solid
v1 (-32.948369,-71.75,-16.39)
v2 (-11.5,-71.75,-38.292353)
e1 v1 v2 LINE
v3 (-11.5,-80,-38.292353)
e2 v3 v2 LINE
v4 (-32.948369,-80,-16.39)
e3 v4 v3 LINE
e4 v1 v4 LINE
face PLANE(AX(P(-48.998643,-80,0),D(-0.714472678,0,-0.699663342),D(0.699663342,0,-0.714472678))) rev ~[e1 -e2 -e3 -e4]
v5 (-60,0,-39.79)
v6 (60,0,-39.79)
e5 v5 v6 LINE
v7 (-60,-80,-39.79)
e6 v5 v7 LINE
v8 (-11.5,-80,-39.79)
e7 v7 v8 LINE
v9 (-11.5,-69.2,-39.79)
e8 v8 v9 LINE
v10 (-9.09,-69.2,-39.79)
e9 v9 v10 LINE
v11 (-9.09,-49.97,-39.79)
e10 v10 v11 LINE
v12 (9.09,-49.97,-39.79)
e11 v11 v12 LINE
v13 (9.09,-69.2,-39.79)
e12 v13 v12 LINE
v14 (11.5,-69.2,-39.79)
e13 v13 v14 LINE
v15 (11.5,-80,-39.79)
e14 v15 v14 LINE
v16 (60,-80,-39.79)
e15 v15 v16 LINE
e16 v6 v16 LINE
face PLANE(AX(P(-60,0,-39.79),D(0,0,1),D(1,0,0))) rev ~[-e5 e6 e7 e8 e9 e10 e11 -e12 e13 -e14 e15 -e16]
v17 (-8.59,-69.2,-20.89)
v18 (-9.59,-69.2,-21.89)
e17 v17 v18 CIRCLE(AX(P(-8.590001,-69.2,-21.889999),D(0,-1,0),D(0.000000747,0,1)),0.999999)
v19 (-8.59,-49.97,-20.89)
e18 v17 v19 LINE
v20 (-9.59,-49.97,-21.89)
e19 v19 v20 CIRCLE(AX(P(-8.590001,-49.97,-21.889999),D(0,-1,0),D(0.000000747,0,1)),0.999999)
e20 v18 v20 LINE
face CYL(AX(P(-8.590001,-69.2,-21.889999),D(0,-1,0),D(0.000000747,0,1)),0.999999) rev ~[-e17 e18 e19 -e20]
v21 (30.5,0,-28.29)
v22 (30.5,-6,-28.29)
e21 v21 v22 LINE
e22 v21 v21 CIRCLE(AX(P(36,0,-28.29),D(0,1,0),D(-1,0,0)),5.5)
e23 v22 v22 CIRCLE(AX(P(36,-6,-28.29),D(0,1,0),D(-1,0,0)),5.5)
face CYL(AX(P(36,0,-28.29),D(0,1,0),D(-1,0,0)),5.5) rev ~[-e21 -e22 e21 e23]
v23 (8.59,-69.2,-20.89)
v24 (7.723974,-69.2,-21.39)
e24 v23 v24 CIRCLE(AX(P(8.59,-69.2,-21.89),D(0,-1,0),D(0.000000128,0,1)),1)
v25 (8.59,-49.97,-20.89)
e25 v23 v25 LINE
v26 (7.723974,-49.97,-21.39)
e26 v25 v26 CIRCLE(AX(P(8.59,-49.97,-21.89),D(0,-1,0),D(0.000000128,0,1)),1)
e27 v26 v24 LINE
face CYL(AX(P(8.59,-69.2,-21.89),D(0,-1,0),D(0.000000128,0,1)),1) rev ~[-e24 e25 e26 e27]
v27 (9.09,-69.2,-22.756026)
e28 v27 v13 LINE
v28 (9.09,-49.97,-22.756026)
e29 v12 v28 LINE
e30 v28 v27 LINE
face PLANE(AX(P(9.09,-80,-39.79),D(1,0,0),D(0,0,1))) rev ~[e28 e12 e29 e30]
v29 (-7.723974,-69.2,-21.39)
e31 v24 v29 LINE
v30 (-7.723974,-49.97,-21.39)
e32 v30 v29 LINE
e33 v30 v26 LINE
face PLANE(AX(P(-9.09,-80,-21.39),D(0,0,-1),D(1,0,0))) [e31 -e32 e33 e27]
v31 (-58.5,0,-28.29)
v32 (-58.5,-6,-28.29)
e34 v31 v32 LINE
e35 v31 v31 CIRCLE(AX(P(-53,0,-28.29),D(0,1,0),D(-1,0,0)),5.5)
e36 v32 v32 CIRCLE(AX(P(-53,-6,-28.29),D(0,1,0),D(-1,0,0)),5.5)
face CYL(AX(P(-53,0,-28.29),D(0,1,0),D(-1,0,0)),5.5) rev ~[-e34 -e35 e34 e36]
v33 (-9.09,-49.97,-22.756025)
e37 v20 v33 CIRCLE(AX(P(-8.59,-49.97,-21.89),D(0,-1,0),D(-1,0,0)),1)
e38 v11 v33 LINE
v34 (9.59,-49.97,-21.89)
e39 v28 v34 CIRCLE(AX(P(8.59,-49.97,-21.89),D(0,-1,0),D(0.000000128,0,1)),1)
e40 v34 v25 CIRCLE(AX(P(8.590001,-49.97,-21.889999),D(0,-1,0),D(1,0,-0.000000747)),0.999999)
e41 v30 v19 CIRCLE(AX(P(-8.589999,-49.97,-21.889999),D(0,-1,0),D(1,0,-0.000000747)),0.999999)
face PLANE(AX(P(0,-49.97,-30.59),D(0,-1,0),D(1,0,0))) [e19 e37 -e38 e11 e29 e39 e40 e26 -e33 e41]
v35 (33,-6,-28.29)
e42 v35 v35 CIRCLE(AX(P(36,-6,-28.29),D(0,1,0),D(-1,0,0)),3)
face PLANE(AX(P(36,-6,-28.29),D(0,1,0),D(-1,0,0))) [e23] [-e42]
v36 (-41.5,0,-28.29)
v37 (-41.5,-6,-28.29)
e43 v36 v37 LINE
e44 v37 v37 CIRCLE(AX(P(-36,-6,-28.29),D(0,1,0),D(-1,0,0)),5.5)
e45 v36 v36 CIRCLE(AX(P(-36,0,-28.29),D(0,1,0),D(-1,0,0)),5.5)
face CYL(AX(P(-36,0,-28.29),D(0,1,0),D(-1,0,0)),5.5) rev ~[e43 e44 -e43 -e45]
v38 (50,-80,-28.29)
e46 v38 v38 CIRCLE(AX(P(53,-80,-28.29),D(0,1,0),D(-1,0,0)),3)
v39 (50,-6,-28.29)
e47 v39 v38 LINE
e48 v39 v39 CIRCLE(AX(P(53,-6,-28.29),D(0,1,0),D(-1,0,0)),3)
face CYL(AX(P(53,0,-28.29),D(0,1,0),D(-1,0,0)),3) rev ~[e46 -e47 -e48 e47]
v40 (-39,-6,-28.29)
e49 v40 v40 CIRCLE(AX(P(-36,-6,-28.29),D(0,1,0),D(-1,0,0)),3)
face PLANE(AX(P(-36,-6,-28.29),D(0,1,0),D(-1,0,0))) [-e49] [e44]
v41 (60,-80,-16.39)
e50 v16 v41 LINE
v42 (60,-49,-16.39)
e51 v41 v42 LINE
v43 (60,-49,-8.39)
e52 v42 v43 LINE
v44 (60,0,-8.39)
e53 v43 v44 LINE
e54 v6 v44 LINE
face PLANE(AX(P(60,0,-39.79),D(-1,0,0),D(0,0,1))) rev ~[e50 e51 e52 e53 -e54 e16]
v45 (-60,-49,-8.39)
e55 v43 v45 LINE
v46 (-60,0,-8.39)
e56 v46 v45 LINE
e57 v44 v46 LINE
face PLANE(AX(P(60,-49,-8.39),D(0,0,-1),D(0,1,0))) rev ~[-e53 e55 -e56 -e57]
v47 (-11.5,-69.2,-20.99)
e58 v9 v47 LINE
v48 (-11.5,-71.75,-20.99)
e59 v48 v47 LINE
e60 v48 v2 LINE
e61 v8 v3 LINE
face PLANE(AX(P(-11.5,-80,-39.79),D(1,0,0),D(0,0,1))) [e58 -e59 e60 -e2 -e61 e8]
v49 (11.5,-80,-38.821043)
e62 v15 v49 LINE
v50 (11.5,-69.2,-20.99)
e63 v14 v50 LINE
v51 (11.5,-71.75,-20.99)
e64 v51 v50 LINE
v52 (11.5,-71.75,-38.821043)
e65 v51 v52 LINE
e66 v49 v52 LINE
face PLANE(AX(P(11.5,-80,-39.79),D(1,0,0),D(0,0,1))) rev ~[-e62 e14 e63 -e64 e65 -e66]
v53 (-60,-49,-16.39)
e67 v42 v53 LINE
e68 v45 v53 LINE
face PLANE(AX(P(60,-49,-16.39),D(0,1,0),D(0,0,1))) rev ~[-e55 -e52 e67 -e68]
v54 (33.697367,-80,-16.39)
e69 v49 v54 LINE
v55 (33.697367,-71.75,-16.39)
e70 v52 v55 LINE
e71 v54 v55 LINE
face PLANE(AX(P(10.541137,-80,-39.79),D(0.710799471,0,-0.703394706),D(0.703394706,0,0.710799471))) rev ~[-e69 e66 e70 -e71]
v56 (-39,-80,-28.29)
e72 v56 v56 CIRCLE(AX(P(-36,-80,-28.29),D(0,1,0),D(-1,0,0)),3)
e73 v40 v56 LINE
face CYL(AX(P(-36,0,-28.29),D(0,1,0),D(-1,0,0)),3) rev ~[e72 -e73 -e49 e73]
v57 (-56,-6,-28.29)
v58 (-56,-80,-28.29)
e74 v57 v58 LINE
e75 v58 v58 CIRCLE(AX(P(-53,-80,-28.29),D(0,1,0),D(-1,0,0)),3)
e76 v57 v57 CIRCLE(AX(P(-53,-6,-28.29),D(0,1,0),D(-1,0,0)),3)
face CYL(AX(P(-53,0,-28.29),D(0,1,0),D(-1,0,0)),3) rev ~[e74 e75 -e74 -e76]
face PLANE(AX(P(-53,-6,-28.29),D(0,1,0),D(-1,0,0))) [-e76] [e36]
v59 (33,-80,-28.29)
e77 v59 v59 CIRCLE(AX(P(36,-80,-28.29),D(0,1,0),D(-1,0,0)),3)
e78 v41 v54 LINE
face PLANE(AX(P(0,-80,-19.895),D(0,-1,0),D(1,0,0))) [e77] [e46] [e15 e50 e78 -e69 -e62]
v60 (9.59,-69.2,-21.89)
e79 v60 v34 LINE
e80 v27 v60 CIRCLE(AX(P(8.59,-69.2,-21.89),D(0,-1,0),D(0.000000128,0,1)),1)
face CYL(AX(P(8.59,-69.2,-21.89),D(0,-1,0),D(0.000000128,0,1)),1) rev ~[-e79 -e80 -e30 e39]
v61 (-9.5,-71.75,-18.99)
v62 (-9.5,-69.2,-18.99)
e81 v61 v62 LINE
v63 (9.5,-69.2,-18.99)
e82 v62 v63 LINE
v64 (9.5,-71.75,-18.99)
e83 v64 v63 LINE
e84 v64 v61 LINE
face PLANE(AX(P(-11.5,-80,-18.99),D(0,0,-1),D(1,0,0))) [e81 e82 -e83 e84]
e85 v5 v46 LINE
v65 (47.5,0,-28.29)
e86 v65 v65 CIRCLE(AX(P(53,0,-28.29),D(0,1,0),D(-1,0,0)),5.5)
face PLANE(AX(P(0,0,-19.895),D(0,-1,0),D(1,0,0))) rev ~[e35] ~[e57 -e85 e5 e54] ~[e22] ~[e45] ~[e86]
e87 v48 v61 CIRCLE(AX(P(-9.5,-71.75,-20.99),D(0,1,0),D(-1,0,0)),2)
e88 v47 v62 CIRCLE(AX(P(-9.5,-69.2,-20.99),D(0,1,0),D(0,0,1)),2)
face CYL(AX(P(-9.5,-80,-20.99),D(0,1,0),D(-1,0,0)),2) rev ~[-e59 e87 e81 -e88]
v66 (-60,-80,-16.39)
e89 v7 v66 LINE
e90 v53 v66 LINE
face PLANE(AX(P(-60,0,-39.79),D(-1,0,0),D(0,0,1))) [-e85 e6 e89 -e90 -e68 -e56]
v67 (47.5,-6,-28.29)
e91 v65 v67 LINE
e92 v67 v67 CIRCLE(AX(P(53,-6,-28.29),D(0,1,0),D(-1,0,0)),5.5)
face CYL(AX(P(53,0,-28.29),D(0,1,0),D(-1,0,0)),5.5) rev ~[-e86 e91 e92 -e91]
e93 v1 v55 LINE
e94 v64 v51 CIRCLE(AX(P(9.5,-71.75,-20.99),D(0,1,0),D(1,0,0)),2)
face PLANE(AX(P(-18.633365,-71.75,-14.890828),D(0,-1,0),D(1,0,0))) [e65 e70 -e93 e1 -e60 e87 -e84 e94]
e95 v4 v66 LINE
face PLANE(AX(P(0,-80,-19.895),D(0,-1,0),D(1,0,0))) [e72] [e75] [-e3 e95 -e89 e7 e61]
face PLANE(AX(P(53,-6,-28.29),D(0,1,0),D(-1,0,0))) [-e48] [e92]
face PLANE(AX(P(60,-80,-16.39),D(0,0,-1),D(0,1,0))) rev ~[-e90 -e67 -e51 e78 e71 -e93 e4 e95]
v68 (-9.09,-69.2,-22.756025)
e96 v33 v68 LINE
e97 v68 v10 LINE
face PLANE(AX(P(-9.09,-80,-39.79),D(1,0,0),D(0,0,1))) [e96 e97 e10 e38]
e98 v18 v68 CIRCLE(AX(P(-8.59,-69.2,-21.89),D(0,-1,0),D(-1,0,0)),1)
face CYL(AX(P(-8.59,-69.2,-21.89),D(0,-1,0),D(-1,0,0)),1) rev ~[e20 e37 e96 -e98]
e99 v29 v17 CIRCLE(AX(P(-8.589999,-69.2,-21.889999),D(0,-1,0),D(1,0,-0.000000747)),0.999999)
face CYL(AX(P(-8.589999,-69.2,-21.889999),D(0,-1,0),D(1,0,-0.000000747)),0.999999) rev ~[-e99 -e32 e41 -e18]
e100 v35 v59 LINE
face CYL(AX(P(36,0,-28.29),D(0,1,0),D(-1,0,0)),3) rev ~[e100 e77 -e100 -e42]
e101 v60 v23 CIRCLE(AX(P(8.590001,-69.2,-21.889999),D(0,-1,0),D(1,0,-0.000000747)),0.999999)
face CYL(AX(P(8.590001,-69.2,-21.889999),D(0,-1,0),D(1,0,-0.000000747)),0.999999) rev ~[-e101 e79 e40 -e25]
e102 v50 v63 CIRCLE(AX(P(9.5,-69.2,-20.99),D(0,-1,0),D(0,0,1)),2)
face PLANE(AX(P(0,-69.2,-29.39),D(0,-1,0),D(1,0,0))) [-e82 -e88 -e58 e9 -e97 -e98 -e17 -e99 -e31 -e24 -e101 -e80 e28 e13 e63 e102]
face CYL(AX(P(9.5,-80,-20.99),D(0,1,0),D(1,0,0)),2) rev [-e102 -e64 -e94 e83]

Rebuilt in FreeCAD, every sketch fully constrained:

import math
import FreeCAD as App
import Part
import Sketcher
Q = App.Units.Quantity


def edges_at(feature, points):
    """Names of the edges that pass closest to the given points."""
    edges = feature.Shape.Edges
    near = lambda p: min(range(len(edges)), key=lambda i: edges[i].distToShape(Part.Vertex(*p))[0])
    return sorted({f"Edge{near(p) + 1}" for p in points})


def add_polygon(sketch, points):
    """Adds a closed chain of lines whose ends are joined by coincident constraints."""
    first, n = sketch.GeometryCount, len(points)
    for a, b in zip(points, points[1:] + points[:1]):
        sketch.addGeometry(Part.LineSegment(App.Vector(*a, 0), App.Vector(*b, 0)), False)
    for i in range(n):
        sketch.addConstraint(Sketcher.Constraint("Coincident", first + i, 2, first + (i + 1) % n, 1))

doc = App.newDocument("Part")
body = doc.addObject("PartDesign::Body", "Body")

# Sketch on XZ plane
sketch1 = body.newObject("Sketcher::SketchObject", "Sketch")
sketch1.AttachmentSupport = (doc.getObject("XZ_Plane"), [""])
sketch1.MapMode = "FlatFace"
add_polygon(sketch1, [(-60, 0), (-60, -40), (60, -40), (60, 0)])  # lines 0-3
sketch1.addConstraint(Sketcher.Constraint("Vertical", 0))
sketch1.addConstraint(Sketcher.Constraint("Horizontal", 1))
sketch1.addConstraint(Sketcher.Constraint("Vertical", 2))
sketch1.addConstraint(Sketcher.Constraint("Horizontal", 3))
sketch1.addConstraint(Sketcher.Constraint("Symmetric", 2, 2, 3, 2, -1, 1))
sketch1.addConstraint(Sketcher.Constraint("DistanceX", 1, 1, 1, 2, Q("120 mm")))
sketch1.addConstraint(Sketcher.Constraint("DistanceY", 0, 2, 0, 1, Q("39.79 mm")))
pad1 = body.newObject("PartDesign::Pad", "Pad")
pad1.Profile = sketch1
pad1.Length = 80

# Sketch on XZ plane
sketch2 = body.newObject("Sketcher::SketchObject", "Sketch001")
sketch2.AttachmentSupport = (doc.getObject("XZ_Plane"), [""])
sketch2.MapMode = "FlatFace"
sketch2.AttachmentOffset = App.Placement(App.Vector(0, 0, 80), App.Rotation())
add_polygon(sketch2, [(-9, -21), (-9, -40), (9, -40), (9, -21)])  # lines 0-3
sketch2.addConstraint(Sketcher.Constraint("Vertical", 0))
sketch2.addConstraint(Sketcher.Constraint("Horizontal", 1))
sketch2.addConstraint(Sketcher.Constraint("Vertical", 2))
sketch2.addConstraint(Sketcher.Constraint("Horizontal", 3))
sketch2.addConstraint(Sketcher.Constraint("DistanceY", 0, 2, 0, 1, Q("18.4 mm")))
sketch2.addConstraint(Sketcher.Constraint("DistanceX", 1, 1, 1, 2, Q("18.18 mm")))
sketch2.addConstraint(Sketcher.Constraint("DistanceX", 0, 2, -1, 1, Q("9.09 mm")))
sketch2.addConstraint(Sketcher.Constraint("DistanceY", 0, 2, -1, 1, Q("39.79 mm")))
pocket1 = body.newObject("PartDesign::Pocket", "Pocket")
pocket1.Profile = sketch2
pocket1.Length = 30.03

# Sketch on XZ plane
sketch3 = body.newObject("Sketcher::SketchObject", "Sketch002")
sketch3.AttachmentSupport = (doc.getObject("XZ_Plane"), [""])
sketch3.MapMode = "FlatFace"
sketch3.AttachmentOffset = App.Placement(App.Vector(0, 0, 80), App.Rotation())
add_polygon(sketch3, [(-12, -19), (-12, -40), (12, -40), (12, -19)])  # lines 0-3
sketch3.addConstraint(Sketcher.Constraint("Vertical", 0))
sketch3.addConstraint(Sketcher.Constraint("Horizontal", 1))
sketch3.addConstraint(Sketcher.Constraint("Vertical", 2))
sketch3.addConstraint(Sketcher.Constraint("Horizontal", 3))
sketch3.addConstraint(Sketcher.Constraint("DistanceX", 1, 1, 1, 2, Q("23 mm")))
sketch3.addConstraint(Sketcher.Constraint("DistanceY", 0, 2, 0, 1, Q("20.8 mm")))
sketch3.addConstraint(Sketcher.Constraint("DistanceX", 0, 2, -1, 1, Q("11.5 mm")))
sketch3.addConstraint(Sketcher.Constraint("DistanceY", 0, 2, -1, 1, Q("39.79 mm")))
pocket2 = body.newObject("PartDesign::Pocket", "Pocket001")
pocket2.Profile = sketch3
pocket2.Length = 10.8

# Sketch on XZ plane
sketch4 = body.newObject("Sketcher::SketchObject", "Sketch003")
sketch4.AttachmentSupport = (doc.getObject("XZ_Plane"), [""])
sketch4.MapMode = "FlatFace"
sketch4.AttachmentOffset = App.Placement(App.Vector(0, 0, 69.2), App.Rotation())
sketch4.addGeometry(Part.ArcOfCircle(Part.Circle(App.Vector(-8.6, -21.9, 0), App.Vector(0, 0, 1), 1), math.radians(90), math.radians(180)), False)
sketch4.addGeometry(Part.ArcOfCircle(Part.Circle(App.Vector(-8.6, -21.9, 0), App.Vector(0, 0, 1), 1), math.radians(180), math.radians(360)), False)
sketch4.addGeometry(Part.ArcOfCircle(Part.Circle(App.Vector(-8.6, -21.9, 0), App.Vector(0, 0, 1), 1), math.radians(0), math.radians(90)), False)
sketch4.addGeometry(Part.ArcOfCircle(Part.Circle(App.Vector(8.6, -21.9, 0), App.Vector(0, 0, 1), 1), math.radians(0), math.radians(90)), False)
sketch4.addGeometry(Part.ArcOfCircle(Part.Circle(App.Vector(8.6, -21.9, 0), App.Vector(0, 0, 1), 1), math.radians(90), math.radians(360)), False)
sketch4.addConstraint(Sketcher.Constraint("Tangent", 0, 2, 1, 1))
sketch4.addConstraint(Sketcher.Constraint("Tangent", 1, 2, 2, 1))
sketch4.addConstraint(Sketcher.Constraint("Tangent", 2, 2, 0, 1))
sketch4.addConstraint(Sketcher.Constraint("Tangent", 3, 1, 4, 2))
sketch4.addConstraint(Sketcher.Constraint("Coincident", 4, 1, 3, 2))
sketch4.addConstraint(Sketcher.Constraint("Equal", 2, 3))
sketch4.addConstraint(Sketcher.Constraint("Symmetric", 0, 3, 3, 3, -2))
sketch4.addConstraint(Sketcher.Constraint("Horizontal", 4, 3, 0, 2))
sketch4.addConstraint(Sketcher.Constraint("Horizontal", 0, 2, 1, 2))
sketch4.addConstraint(Sketcher.Constraint("Horizontal", 1, 2, 3, 1))
sketch4.addConstraint(Sketcher.Constraint("Vertical", 1, 3, 2, 2))
sketch4.addConstraint(Sketcher.Constraint("Vertical", 3, 3, 4, 1))
sketch4.addConstraint(Sketcher.Constraint("Radius", 0, Q("0.999999 mm")))
sketch4.addConstraint(Sketcher.Constraint("DistanceX", 0, 3, -1, 1, Q("8.590001 mm")))
sketch4.addConstraint(Sketcher.Constraint("DistanceY", 0, 3, -1, 1, Q("21.889999 mm")))
pocket3 = body.newObject("PartDesign::Pocket", "Pocket002")
pocket3.Profile = sketch4
pocket3.Length = 19.23
doc.recompute()

fillet = body.newObject("PartDesign::Fillet", "Fillet")
fillet.Base = (pocket3, edges_at(pocket3, [(-11.5, -74.6, -18.99), (11.5, -74.6, -18.99)]))
fillet.Radius = 2

# Sketch on XZ plane
sketch5 = body.newObject("Sketcher::SketchObject", "Sketch004")
sketch5.AttachmentSupport = (doc.getObject("XZ_Plane"), [""])
sketch5.MapMode = "FlatFace"
sketch5.AttachmentOffset = App.Placement(App.Vector(0, 0, 80), App.Rotation())
add_polygon(sketch5, [(-49, 0), (-10, -40), (11, -40), (50, 0)])  # lines 0-3
sketch5.addConstraint(Sketcher.Constraint("Horizontal", 1))
sketch5.addConstraint(Sketcher.Constraint("Horizontal", 3))
sketch5.addConstraint(Sketcher.Constraint("PointOnObject", 2, 2, -1))
sketch5.addConstraint(Sketcher.Constraint("Angle", 0, Q("-45.6 deg")))
sketch5.addConstraint(Sketcher.Constraint("Angle", 2, Q("45.3 deg")))
sketch5.addConstraint(Sketcher.Constraint("DistanceY", 0, 2, -1, 1, Q("39.79 mm")))
sketch5.addConstraint(Sketcher.Constraint("DistanceX", 1, 1, 1, 2, Q("20.574533 mm")))
sketch5.addConstraint(Sketcher.Constraint("DistanceX", 0, 2, -1, 1, Q("10.033396 mm")))
pocket4 = body.newObject("PartDesign::Pocket", "Pocket003")
pocket4.Profile = sketch5
pocket4.Length = 8.25

# Sketch on YZ plane
sketch6 = body.newObject("Sketcher::SketchObject", "Sketch005")
sketch6.AttachmentSupport = (doc.getObject("YZ_Plane"), [""])
sketch6.MapMode = "FlatFace"
sketch6.AttachmentOffset = App.Placement(App.Vector(0, 0, 60), App.Rotation())
add_polygon(sketch6, [(-49, -8), (0, -8), (0, 0), (-80, 0), (-80, -16), (-49, -16)])  # lines 0-5
sketch6.addConstraint(Sketcher.Constraint("Horizontal", 0))
sketch6.addConstraint(Sketcher.Constraint("Vertical", 1))
sketch6.addConstraint(Sketcher.Constraint("Horizontal", 2))
sketch6.addConstraint(Sketcher.Constraint("Vertical", 3))
sketch6.addConstraint(Sketcher.Constraint("Horizontal", 4))
sketch6.addConstraint(Sketcher.Constraint("Vertical", 5))
sketch6.addConstraint(Sketcher.Constraint("Coincident", 1, 2, -1, 1))
sketch6.addConstraint(Sketcher.Constraint("DistanceX", 0, 1, 0, 2, Q("49 mm")))
sketch6.addConstraint(Sketcher.Constraint("DistanceX", 2, 2, 2, 1, Q("80 mm")))
sketch6.addConstraint(Sketcher.Constraint("DistanceY", 5, 1, 5, 2, Q("8 mm")))
sketch6.addConstraint(Sketcher.Constraint("DistanceY", 1, 1, 1, 2, Q("8.39 mm")))
pocket5 = body.newObject("PartDesign::Pocket", "Pocket004")
pocket5.Profile = sketch6
pocket5.Type = "ThroughAll"

# Sketch on XZ plane
sketch7 = body.newObject("Sketcher::SketchObject", "Sketch006")
sketch7.AttachmentSupport = (doc.getObject("XZ_Plane"), [""])
sketch7.MapMode = "FlatFace"
sketch7.addGeometry(Part.Circle(App.Vector(53, -28.3, 0), App.Vector(0, 0, 1), 3), False)
sketch7.addGeometry(Part.Circle(App.Vector(36, -28.3, 0), App.Vector(0, 0, 1), 3), False)
sketch7.addGeometry(Part.Circle(App.Vector(-36, -28.3, 0), App.Vector(0, 0, 1), 3), False)
sketch7.addGeometry(Part.Circle(App.Vector(-53, -28.3, 0), App.Vector(0, 0, 1), 3), False)
sketch7.addConstraint(Sketcher.Constraint("Equal", 0, 1))
sketch7.addConstraint(Sketcher.Constraint("Equal", 1, 2))
sketch7.addConstraint(Sketcher.Constraint("Equal", 2, 3))
sketch7.addConstraint(Sketcher.Constraint("Symmetric", 1, 3, 2, 3, -2))
sketch7.addConstraint(Sketcher.Constraint("Symmetric", 0, 3, 3, 3, -2))
sketch7.addConstraint(Sketcher.Constraint("Horizontal", 0, 3, 1, 3))
sketch7.addConstraint(Sketcher.Constraint("Diameter", 0, Q("6 mm")))
sketch7.addConstraint(Sketcher.Constraint("DistanceX", -1, 1, 0, 3, Q("53 mm")))
sketch7.addConstraint(Sketcher.Constraint("DistanceX", -1, 1, 1, 3, Q("36 mm")))
sketch7.addConstraint(Sketcher.Constraint("DistanceY", 0, 3, -1, 1, Q("28.29 mm")))
pocket6 = body.newObject("PartDesign::Pocket", "Pocket005")
pocket6.Profile = sketch7
pocket6.Type = "ThroughAll"
pocket6.Reversed = True

# Sketch on XZ plane
sketch8 = body.newObject("Sketcher::SketchObject", "Sketch007")
sketch8.AttachmentSupport = (doc.getObject("XZ_Plane"), [""])
sketch8.MapMode = "FlatFace"
sketch8.addGeometry(Part.Circle(App.Vector(53, -28.3, 0), App.Vector(0, 0, 1), 5.5), False)
sketch8.addGeometry(Part.Circle(App.Vector(53, -28.3, 0), App.Vector(0, 0, 1), 3), False)
sketch8.addGeometry(Part.Circle(App.Vector(36, -28.3, 0), App.Vector(0, 0, 1), 5.5), False)
sketch8.addGeometry(Part.Circle(App.Vector(36, -28.3, 0), App.Vector(0, 0, 1), 3), False)
sketch8.addGeometry(Part.Circle(App.Vector(-36, -28.3, 0), App.Vector(0, 0, 1), 5.5), False)
sketch8.addGeometry(Part.Circle(App.Vector(-36, -28.3, 0), App.Vector(0, 0, 1), 3), False)
sketch8.addGeometry(Part.Circle(App.Vector(-53, -28.3, 0), App.Vector(0, 0, 1), 5.5), False)
sketch8.addGeometry(Part.Circle(App.Vector(-53, -28.3, 0), App.Vector(0, 0, 1), 3), False)
sketch8.addConstraint(Sketcher.Constraint("Coincident", 1, 3, 0, 3))
sketch8.addConstraint(Sketcher.Constraint("Coincident", 3, 3, 2, 3))
sketch8.addConstraint(Sketcher.Constraint("Coincident", 5, 3, 4, 3))
sketch8.addConstraint(Sketcher.Constraint("Coincident", 7, 3, 6, 3))
sketch8.addConstraint(Sketcher.Constraint("Equal", 0, 2))
sketch8.addConstraint(Sketcher.Constraint("Equal", 1, 3))
sketch8.addConstraint(Sketcher.Constraint("Equal", 2, 4))
sketch8.addConstraint(Sketcher.Constraint("Equal", 3, 5))
sketch8.addConstraint(Sketcher.Constraint("Equal", 4, 6))
sketch8.addConstraint(Sketcher.Constraint("Equal", 5, 7))
sketch8.addConstraint(Sketcher.Constraint("Symmetric", 2, 3, 4, 3, -2))
sketch8.addConstraint(Sketcher.Constraint("Symmetric", 0, 3, 6, 3, -2))
sketch8.addConstraint(Sketcher.Constraint("Horizontal", 1, 3, 2, 3))
sketch8.addConstraint(Sketcher.Constraint("Diameter", 0, Q("11 mm")))
sketch8.addConstraint(Sketcher.Constraint("Diameter", 1, Q("6 mm")))
sketch8.addConstraint(Sketcher.Constraint("DistanceX", -1, 1, 0, 3, Q("53 mm")))
sketch8.addConstraint(Sketcher.Constraint("DistanceX", -1, 1, 2, 3, Q("36 mm")))
sketch8.addConstraint(Sketcher.Constraint("DistanceY", 0, 3, -1, 1, Q("28.29 mm")))
pocket7 = body.newObject("PartDesign::Pocket", "Pocket006")
pocket7.Profile = sketch8
pocket7.Length = 6
pocket7.Reversed = True

doc.recompute()
